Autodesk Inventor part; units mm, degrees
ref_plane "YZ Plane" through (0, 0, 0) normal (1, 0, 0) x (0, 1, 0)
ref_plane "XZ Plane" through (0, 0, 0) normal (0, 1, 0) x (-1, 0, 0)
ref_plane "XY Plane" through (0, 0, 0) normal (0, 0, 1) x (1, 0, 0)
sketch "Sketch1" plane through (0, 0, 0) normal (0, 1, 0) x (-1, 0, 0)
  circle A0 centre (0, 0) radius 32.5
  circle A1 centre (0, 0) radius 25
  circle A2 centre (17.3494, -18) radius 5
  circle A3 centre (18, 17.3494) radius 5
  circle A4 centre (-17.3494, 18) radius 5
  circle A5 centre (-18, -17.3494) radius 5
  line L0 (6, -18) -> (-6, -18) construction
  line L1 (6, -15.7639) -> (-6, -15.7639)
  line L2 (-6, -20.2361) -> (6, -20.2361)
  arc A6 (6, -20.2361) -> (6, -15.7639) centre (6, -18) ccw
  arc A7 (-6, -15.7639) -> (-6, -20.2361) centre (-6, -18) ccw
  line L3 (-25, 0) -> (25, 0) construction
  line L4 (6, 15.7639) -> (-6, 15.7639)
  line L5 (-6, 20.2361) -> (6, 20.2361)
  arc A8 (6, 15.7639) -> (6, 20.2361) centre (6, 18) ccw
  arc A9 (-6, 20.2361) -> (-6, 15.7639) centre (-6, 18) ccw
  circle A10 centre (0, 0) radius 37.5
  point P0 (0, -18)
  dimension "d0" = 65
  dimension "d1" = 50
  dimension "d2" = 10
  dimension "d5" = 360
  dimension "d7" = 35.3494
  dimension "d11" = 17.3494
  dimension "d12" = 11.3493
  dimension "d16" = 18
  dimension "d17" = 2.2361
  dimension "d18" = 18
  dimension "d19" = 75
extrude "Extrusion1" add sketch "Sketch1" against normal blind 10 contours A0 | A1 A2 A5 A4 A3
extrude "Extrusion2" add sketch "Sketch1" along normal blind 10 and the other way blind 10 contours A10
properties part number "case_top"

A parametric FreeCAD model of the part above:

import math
import FreeCAD as App
import Part
import Sketcher
Q = App.Units.Quantity

doc = App.newDocument("Part")
body = doc.addObject("PartDesign::Body", "Body")

sketch1 = doc.addObject("Sketcher::SketchObject", "Sketch")
body.addObject(sketch1)
sketch1.AttachmentSupport = (doc.XZ_Plane, [""])
sketch1.MapMode = "FlatFace"
sketch1.addGeometry([
    Part.Circle(App.Vector(0, 0, 0), App.Vector(0, 0, 1), 32.5),
    Part.Circle(App.Vector(-18, 17.3, 0), App.Vector(0, 0, 1), 5),
    Part.Circle(App.Vector(17.3, 18, 0), App.Vector(0, 0, 1), 5),
    Part.Circle(App.Vector(18, -17.3, 0), App.Vector(0, 0, 1), 5),
    Part.Circle(App.Vector(-17.3, -18, 0), App.Vector(0, 0, 1), 5),
    Part.ArcOfCircle(Part.Circle(App.Vector(-6, -18, 0), App.Vector(0, 0, 1), 2.2), math.radians(90), math.radians(270)),
    Part.LineSegment(App.Vector(-6, -20.2, 0), App.Vector(6, -20.2, 0)),
    Part.ArcOfCircle(Part.Circle(App.Vector(6, -18, 0), App.Vector(0, 0, 1), 2.2), math.radians(-90), math.radians(90)),
    Part.LineSegment(App.Vector(6, -15.8, 0), App.Vector(-6, -15.8, 0)),
    Part.ArcOfCircle(Part.Circle(App.Vector(-6, 18, 0), App.Vector(0, 0, 1), 2.2), math.radians(90), math.radians(270)),
    Part.LineSegment(App.Vector(-6, 15.8, 0), App.Vector(6, 15.8, 0)),
    Part.ArcOfCircle(Part.Circle(App.Vector(6, 18, 0), App.Vector(0, 0, 1), 2.2), math.radians(-90), math.radians(90)),
    Part.LineSegment(App.Vector(6, 20.2, 0), App.Vector(-6, 20.2, 0)),
], False)
sketch1.addConstraint([
    Sketcher.Constraint("Tangent", 5, 2, 6, 1),
    Sketcher.Constraint("Tangent", 6, 2, 7, 1),
    Sketcher.Constraint("Tangent", 7, 2, 8, 1),
    Sketcher.Constraint("Tangent", 8, 2, 5, 1),
    Sketcher.Constraint("Tangent", 9, 2, 10, 1),
    Sketcher.Constraint("Tangent", 10, 2, 11, 1),
    Sketcher.Constraint("Tangent", 11, 2, 12, 1),
    Sketcher.Constraint("Tangent", 12, 2, 9, 1),
    Sketcher.Constraint("Horizontal", 6),
    Sketcher.Constraint("Horizontal", 8),
    Sketcher.Constraint("Horizontal", 10),
    Sketcher.Constraint("Horizontal", 12),
    Sketcher.Constraint("Coincident", 0, 3, -1, 1),
    Sketcher.Constraint("Equal", 1, 2),
    Sketcher.Constraint("Equal", 2, 3),
    Sketcher.Constraint("Equal", 3, 4),
    Sketcher.Constraint("Equal", 7, 9),
    Sketcher.Constraint("Symmetric", 1, 3, 3, 3, -1, 1),
    Sketcher.Constraint("Symmetric", 2, 3, 4, 3, -1, 1),
    Sketcher.Constraint("Symmetric", 7, 3, 9, 3, -1, 1),
    Sketcher.Constraint("Horizontal", 4, 3, 5, 3),
    Sketcher.Constraint("Vertical", 5, 3, 9, 3),
    Sketcher.Constraint("Vertical", 7, 3, 11, 3),
    Sketcher.Constraint("Diameter", 0, Q("65 mm")),
    Sketcher.Constraint("Diameter", 1, Q("10 mm")),
    Sketcher.Constraint("DistanceX", 1, 3, -1, 1, Q("18 mm")),
    Sketcher.Constraint("DistanceY", -1, 1, 2, 3, Q("18 mm")),
    Sketcher.Constraint("Radius", 5, Q("2.236 mm")),
    Sketcher.Constraint("DistanceX", 6, 1, 6, 2, Q("12 mm")),
    Sketcher.Constraint("DistanceY", -1, 1, 1, 3, Q("17.3494 mm")),
    Sketcher.Constraint("DistanceX", -1, 1, 2, 3, Q("17.3494 mm")),
])
pad1 = doc.addObject("PartDesign::Pad", "Pad")
body.addObject(pad1)
pad1.Profile = sketch1
pad1.Length = 10

sketch2 = doc.addObject("Sketcher::SketchObject", "Sketch001")
body.addObject(sketch2)
sketch2.AttachmentSupport = (doc.XZ_Plane, [""])
sketch2.MapMode = "FlatFace"
sketch2.addGeometry([
    Part.Circle(App.Vector(0, 0, 0), App.Vector(0, 0, 1), 38),
    Part.Circle(App.Vector(0, 0, 0), App.Vector(0, 0, 1), 32),
], False)
sketch2.addConstraint([
    Sketcher.Constraint("Coincident", 0, 3, -1, 1),
    Sketcher.Constraint("Coincident", 1, 3, -1, 1),
    Sketcher.Constraint("Diameter", 0, Q("75 mm")),
    Sketcher.Constraint("Diameter", 1, Q("65 mm")),
])
pad2 = doc.addObject("PartDesign::Pad", "Pad001")
body.addObject(pad2)
pad2.Profile = sketch2
pad2.Type = "TwoLengths"
pad2.Length = 10
pad2.Length2 = 10
pad2.Reversed = True

doc.recompute()
